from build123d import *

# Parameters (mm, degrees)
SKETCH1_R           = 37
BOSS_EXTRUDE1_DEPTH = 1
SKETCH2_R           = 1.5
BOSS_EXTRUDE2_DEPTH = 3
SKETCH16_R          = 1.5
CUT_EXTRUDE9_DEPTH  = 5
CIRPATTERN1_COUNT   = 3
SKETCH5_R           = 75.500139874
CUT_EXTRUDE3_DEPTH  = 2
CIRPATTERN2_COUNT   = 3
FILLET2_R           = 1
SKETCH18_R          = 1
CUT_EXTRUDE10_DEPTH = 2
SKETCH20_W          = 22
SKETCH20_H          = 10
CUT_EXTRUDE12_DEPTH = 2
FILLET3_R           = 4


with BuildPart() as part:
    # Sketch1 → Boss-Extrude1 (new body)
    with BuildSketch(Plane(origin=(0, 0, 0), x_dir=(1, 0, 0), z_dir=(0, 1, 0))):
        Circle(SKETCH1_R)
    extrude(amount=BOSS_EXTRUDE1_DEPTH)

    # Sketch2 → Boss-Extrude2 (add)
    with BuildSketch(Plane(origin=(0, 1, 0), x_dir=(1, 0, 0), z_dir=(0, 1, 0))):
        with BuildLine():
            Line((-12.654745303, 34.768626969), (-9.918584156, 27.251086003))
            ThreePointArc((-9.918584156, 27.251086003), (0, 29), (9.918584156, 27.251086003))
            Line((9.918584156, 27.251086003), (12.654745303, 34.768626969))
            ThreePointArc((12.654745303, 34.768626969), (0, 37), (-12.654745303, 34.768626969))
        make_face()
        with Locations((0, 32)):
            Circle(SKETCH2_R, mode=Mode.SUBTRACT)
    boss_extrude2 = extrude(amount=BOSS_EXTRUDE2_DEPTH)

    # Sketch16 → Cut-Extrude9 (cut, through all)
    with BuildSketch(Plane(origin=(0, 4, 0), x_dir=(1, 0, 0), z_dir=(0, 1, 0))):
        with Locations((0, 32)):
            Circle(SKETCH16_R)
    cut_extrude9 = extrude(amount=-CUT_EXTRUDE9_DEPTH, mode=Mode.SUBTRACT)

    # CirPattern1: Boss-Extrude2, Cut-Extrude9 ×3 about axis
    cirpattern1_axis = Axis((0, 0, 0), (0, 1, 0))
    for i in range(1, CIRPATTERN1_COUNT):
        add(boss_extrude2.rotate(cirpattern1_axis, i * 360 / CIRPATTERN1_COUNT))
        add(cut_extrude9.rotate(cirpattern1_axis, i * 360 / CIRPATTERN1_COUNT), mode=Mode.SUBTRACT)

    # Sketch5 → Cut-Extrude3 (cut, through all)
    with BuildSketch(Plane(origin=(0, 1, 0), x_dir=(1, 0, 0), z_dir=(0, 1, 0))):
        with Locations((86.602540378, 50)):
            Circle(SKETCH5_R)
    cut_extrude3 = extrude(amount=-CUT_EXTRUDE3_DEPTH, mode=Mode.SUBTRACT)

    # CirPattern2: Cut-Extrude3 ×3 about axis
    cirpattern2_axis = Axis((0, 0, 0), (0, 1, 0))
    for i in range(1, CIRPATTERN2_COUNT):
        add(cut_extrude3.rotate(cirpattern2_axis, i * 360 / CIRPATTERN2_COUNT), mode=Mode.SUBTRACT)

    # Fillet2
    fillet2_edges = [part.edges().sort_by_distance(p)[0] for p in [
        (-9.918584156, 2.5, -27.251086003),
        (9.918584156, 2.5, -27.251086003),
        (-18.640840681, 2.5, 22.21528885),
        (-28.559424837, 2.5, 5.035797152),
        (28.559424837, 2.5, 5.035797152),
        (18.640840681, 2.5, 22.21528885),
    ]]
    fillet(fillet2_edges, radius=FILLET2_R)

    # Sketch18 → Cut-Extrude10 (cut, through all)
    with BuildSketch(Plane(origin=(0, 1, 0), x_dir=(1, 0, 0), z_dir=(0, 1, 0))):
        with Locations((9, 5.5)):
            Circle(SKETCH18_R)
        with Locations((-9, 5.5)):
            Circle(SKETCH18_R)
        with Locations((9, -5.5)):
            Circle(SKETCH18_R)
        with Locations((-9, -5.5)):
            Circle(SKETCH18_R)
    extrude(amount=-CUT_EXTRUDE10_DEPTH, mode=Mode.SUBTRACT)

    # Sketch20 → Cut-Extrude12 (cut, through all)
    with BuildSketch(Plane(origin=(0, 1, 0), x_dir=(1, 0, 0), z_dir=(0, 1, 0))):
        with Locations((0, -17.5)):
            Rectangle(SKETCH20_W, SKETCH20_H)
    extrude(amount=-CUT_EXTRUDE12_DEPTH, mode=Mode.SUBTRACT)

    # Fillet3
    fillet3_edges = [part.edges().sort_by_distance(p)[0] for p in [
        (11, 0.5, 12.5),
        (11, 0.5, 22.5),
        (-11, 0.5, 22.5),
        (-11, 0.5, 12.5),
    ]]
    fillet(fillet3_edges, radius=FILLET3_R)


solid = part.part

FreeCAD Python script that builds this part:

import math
import FreeCAD as App
import Part
import Sketcher
Q = App.Units.Quantity


def edges_at(feature, points):
    """Names of the edges that pass closest to the given points."""
    edges = feature.Shape.Edges
    near = lambda p: min(range(len(edges)), key=lambda i: edges[i].distToShape(Part.Vertex(*p))[0])
    return sorted({f"Edge{near(p) + 1}" for p in points})


def add_polygon(sketch, points):
    """Adds a closed chain of lines whose ends are joined by coincident constraints."""
    first, n = sketch.GeometryCount, len(points)
    for a, b in zip(points, points[1:] + points[:1]):
        sketch.addGeometry(Part.LineSegment(App.Vector(*a, 0), App.Vector(*b, 0)), False)
    for i in range(n):
        sketch.addConstraint(Sketcher.Constraint("Coincident", first + i, 2, first + (i + 1) % n, 1))

doc = App.newDocument("Part")
body = doc.addObject("PartDesign::Body", "Body")

# Sketch on XZ plane
sketch1 = body.newObject("Sketcher::SketchObject", "Sketch")
sketch1.AttachmentSupport = (doc.getObject("XZ_Plane"), [""])
sketch1.MapMode = "FlatFace"
sketch1.addGeometry(Part.Circle(App.Vector(0, 0, 0), App.Vector(0, 0, 1), 37), False)
sketch1.addConstraint(Sketcher.Constraint("Coincident", 0, 3, -1, 1))
sketch1.addConstraint(Sketcher.Constraint("Diameter", 0, 74.0))
pad1 = body.newObject("PartDesign::Pad", "Pad")
pad1.Profile = sketch1
pad1.Length = 1
pad1.Reversed = True

# Sketch on XZ plane
sketch2 = body.newObject("Sketcher::SketchObject", "Sketch001")
sketch2.AttachmentSupport = (doc.getObject("XZ_Plane"), [""])
sketch2.MapMode = "FlatFace"
sketch2.AttachmentOffset = App.Placement(App.Vector(0, 0, -1), App.Rotation())
sketch2.addGeometry(Part.LineSegment(App.Vector(-12.654745, -34.768627, 0), App.Vector(-9.918584, -27.251086, 0)), False)
sketch2.addGeometry(Part.ArcOfCircle(Part.Circle(App.Vector(0, 0, 0), App.Vector(0, 0, 1), 29), math.radians(-110), math.radians(-70)), False)
sketch2.addGeometry(Part.LineSegment(App.Vector(9.918584, -27.251086, 0), App.Vector(12.654745, -34.768627, 0)), False)
sketch2.addGeometry(Part.ArcOfCircle(Part.Circle(App.Vector(0, 0, 0), App.Vector(0, 0, 1), 37), math.radians(-110), math.radians(-70)), False)
sketch2.addGeometry(Part.Circle(App.Vector(0, -32, 0), App.Vector(0, 0, 1), 1.5), False)
sketch2.addConstraint(Sketcher.Constraint("Coincident", 0, 2, 1, 1))
sketch2.addConstraint(Sketcher.Constraint("Coincident", 1, 2, 2, 1))
sketch2.addConstraint(Sketcher.Constraint("Coincident", 2, 2, 3, 2))
sketch2.addConstraint(Sketcher.Constraint("Coincident", 3, 1, 0, 1))
sketch2.addConstraint(Sketcher.Constraint("Coincident", 1, 3, -1, 1))
sketch2.addConstraint(Sketcher.Constraint("Coincident", 3, 3, -1, 1))
sketch2.addConstraint(Sketcher.Constraint("PointOnObject", 4, 3, -2))
sketch2.addConstraint(Sketcher.Constraint("Horizontal", 0, 2, 1, 2))
sketch2.addConstraint(Sketcher.Constraint("Horizontal", 2, 2, 3, 1))
sketch2.addConstraint(Sketcher.Constraint("Diameter", 4, 3.0))
sketch2.addConstraint(Sketcher.Constraint("Radius", 1, 29.0))
sketch2.addConstraint(Sketcher.Constraint("Radius", 3, 37.0))
sketch2.addConstraint(Sketcher.Constraint("Angle", 0, Q("70 deg")))
sketch2.addConstraint(Sketcher.Constraint("DistanceY", 4, 3, -1, 1, 32.0))
sketch2.addConstraint(Sketcher.Constraint("DistanceX", 0, 2, 1, 2, 19.837168))
pad2 = body.newObject("PartDesign::Pad", "Pad001")
pad2.Profile = sketch2
pad2.Length = 3
pad2.Reversed = True

# Sketch on XZ plane
sketch3 = body.newObject("Sketcher::SketchObject", "Sketch002")
sketch3.AttachmentSupport = (doc.getObject("XZ_Plane"), [""])
sketch3.MapMode = "FlatFace"
sketch3.AttachmentOffset = App.Placement(App.Vector(0, 0, -4), App.Rotation())
sketch3.addGeometry(Part.Circle(App.Vector(0, -32, 0), App.Vector(0, 0, 1), 1.5), False)
sketch3.addConstraint(Sketcher.Constraint("PointOnObject", 0, 3, -2))
sketch3.addConstraint(Sketcher.Constraint("Diameter", 0, 3.0))
sketch3.addConstraint(Sketcher.Constraint("DistanceY", 0, 3, -1, 1, 32.0))
pocket1 = body.newObject("PartDesign::Pocket", "Pocket")
pocket1.Profile = sketch3
pocket1.Type = "ThroughAll"
pocket1.Reversed = True
doc.recompute()

polarpattern = body.newObject("PartDesign::PolarPattern", "PolarPattern")
polarpattern.Originals = [pad2, pocket1]
polarpattern.Axis = (doc.getObject("Y_Axis"), [""])
polarpattern.Angle = 360
polarpattern.Occurrences = 3
body.Tip = polarpattern

# Sketch on XZ plane
sketch4 = body.newObject("Sketcher::SketchObject", "Sketch003")
sketch4.AttachmentSupport = (doc.getObject("XZ_Plane"), [""])
sketch4.MapMode = "FlatFace"
sketch4.AttachmentOffset = App.Placement(App.Vector(0, 0, -1), App.Rotation())
sketch4.addGeometry(Part.Circle(App.Vector(86.60254, -50, 0), App.Vector(0, 0, 1), 75.50014), False)
sketch4.addConstraint(Sketcher.Constraint("DistanceY", 0, 3, -1, 1, 50.0))
sketch4.addConstraint(Sketcher.Constraint("Diameter", 0, 151.00028))
sketch4.addConstraint(Sketcher.Constraint("DistanceX", -1, 1, 0, 3, 86.60254))
pocket2 = body.newObject("PartDesign::Pocket", "Pocket001")
pocket2.Profile = sketch4
pocket2.Type = "ThroughAll"
pocket2.Reversed = True
doc.recompute()

polarpattern2 = body.newObject("PartDesign::PolarPattern", "PolarPattern001")
polarpattern2.Originals = [pocket2]
polarpattern2.Axis = (doc.getObject("Y_Axis"), [""])
polarpattern2.Angle = 360
polarpattern2.Occurrences = 3
body.Tip = polarpattern2
doc.recompute()

fillet = body.newObject("PartDesign::Fillet", "Fillet")
fillet.Base = (polarpattern2, edges_at(polarpattern2, [
    (-9.919, 2.5, -27.251),
    (9.919, 2.5, -27.251),
    (-18.641, 2.5, 22.215),
    (-28.559, 2.5, 5.036),
    (28.559, 2.5, 5.036),
    (18.641, 2.5, 22.215),
]))
fillet.Radius = 1

# Sketch on XZ plane
sketch5 = body.newObject("Sketcher::SketchObject", "Sketch004")
sketch5.AttachmentSupport = (doc.getObject("XZ_Plane"), [""])
sketch5.MapMode = "FlatFace"
sketch5.AttachmentOffset = App.Placement(App.Vector(0, 0, -1), App.Rotation())
sketch5.addGeometry(Part.Circle(App.Vector(9, -5.5, 0), App.Vector(0, 0, 1), 1), False)
sketch5.addGeometry(Part.Circle(App.Vector(-9, -5.5, 0), App.Vector(0, 0, 1), 1), False)
sketch5.addGeometry(Part.Circle(App.Vector(9, 5.5, 0), App.Vector(0, 0, 1), 1), False)
sketch5.addGeometry(Part.Circle(App.Vector(-9, 5.5, 0), App.Vector(0, 0, 1), 1), False)
sketch5.addConstraint(Sketcher.Constraint("Equal", 0, 1))
sketch5.addConstraint(Sketcher.Constraint("Equal", 1, 2))
sketch5.addConstraint(Sketcher.Constraint("Equal", 2, 3))
sketch5.addConstraint(Sketcher.Constraint("Symmetric", 1, 3, 2, 3, -1, 1))
sketch5.addConstraint(Sketcher.Constraint("Symmetric", 0, 3, 3, 3, -1, 1))
sketch5.addConstraint(Sketcher.Constraint("Symmetric", 0, 3, 1, 3, -2))
sketch5.addConstraint(Sketcher.Constraint("Diameter", 0, 2.0))
sketch5.addConstraint(Sketcher.Constraint("DistanceX", -1, 1, 0, 3, 9.0))
sketch5.addConstraint(Sketcher.Constraint("DistanceY", 0, 3, 2, 3, 11.0))
pocket3 = body.newObject("PartDesign::Pocket", "Pocket002")
pocket3.Profile = sketch5
pocket3.Type = "ThroughAll"
pocket3.Reversed = True

# Sketch on XZ plane
sketch6 = body.newObject("Sketcher::SketchObject", "Sketch005")
sketch6.AttachmentSupport = (doc.getObject("XZ_Plane"), [""])
sketch6.MapMode = "FlatFace"
sketch6.AttachmentOffset = App.Placement(App.Vector(0, 0, -1), App.Rotation())
add_polygon(sketch6, [(-11, 12.5), (-11, 22.5), (11, 22.5), (11, 12.5)])  # lines 0-3
sketch6.addConstraint(Sketcher.Constraint("Vertical", 0))
sketch6.addConstraint(Sketcher.Constraint("Horizontal", 1))
sketch6.addConstraint(Sketcher.Constraint("Vertical", 2))
sketch6.addConstraint(Sketcher.Constraint("Horizontal", 3))
sketch6.addConstraint(Sketcher.Constraint("DistanceX", 1, 1, 1, 2, 22.0))
sketch6.addConstraint(Sketcher.Constraint("DistanceY", 0, 1, 0, 2, 10.0))
sketch6.addConstraint(Sketcher.Constraint("DistanceX", 0, 2, -1, 1, 11.0))
sketch6.addConstraint(Sketcher.Constraint("DistanceY", -1, 1, 0, 2, 22.5))
pocket4 = body.newObject("PartDesign::Pocket", "Pocket003")
pocket4.Profile = sketch6
pocket4.Type = "ThroughAll"
pocket4.Reversed = True
doc.recompute()

fillet2 = body.newObject("PartDesign::Fillet", "Fillet001")
fillet2.Base = (pocket4, edges_at(pocket4, [
    (11, 0.5, 12.5),
    (11, 0.5, 22.5),
    (-11, 0.5, 22.5),
    (-11, 0.5, 12.5),
]))
fillet2.Radius = 4

doc.recompute()
